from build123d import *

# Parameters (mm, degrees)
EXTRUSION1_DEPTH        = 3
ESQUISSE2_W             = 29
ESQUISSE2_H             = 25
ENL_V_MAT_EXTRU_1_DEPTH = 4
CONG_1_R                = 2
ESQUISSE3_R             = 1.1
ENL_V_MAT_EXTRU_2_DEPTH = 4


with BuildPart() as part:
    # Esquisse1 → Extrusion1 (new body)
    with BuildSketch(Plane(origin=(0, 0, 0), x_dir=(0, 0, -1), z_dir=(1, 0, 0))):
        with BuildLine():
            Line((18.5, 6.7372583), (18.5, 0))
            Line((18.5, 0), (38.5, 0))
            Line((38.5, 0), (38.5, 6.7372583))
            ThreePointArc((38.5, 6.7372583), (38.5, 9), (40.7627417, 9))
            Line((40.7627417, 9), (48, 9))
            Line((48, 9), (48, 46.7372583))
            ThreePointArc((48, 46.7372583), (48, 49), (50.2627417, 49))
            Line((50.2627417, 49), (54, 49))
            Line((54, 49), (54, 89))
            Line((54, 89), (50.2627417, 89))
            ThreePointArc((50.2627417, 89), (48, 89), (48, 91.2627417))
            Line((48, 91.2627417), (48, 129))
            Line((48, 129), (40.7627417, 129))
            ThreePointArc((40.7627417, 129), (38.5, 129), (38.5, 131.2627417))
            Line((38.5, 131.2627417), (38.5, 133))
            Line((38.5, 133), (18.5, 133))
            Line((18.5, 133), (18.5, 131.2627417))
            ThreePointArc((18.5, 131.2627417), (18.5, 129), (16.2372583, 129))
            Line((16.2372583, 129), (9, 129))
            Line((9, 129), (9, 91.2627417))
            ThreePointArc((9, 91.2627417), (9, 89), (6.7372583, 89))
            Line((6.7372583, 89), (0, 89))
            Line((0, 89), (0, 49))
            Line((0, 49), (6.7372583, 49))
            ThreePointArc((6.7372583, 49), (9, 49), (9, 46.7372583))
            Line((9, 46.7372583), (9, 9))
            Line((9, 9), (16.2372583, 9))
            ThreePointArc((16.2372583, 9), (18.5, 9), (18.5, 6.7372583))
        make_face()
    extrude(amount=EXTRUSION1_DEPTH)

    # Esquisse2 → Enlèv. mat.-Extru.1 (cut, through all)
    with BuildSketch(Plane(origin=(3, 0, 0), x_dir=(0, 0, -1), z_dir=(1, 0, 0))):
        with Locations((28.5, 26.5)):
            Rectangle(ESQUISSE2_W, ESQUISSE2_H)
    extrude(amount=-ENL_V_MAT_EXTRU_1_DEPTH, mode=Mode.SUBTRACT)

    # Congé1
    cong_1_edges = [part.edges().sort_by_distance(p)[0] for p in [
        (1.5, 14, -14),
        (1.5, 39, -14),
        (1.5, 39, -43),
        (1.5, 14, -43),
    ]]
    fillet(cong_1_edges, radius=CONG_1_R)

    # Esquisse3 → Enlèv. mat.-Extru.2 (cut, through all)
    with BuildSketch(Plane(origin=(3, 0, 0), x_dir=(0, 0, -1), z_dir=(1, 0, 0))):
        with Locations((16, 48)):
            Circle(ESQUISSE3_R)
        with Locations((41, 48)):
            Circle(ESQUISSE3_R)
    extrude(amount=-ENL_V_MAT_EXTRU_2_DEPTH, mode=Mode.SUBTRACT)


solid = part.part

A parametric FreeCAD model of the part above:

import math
import FreeCAD as App
import Part
import Sketcher
from FreeCAD import Vector
Q = App.Units.Quantity


def edges_at(feature, points):
    """Names of the edges that pass closest to the given points."""
    edges = feature.Shape.Edges
    near = lambda p: min(range(len(edges)), key=lambda i: edges[i].distToShape(Part.Vertex(*p))[0])
    return sorted({f"Edge{near(p) + 1}" for p in points})

doc = App.newDocument("Part")
body = doc.addObject("PartDesign::Body", "Body")

# Sketch on YZ plane
sketch1 = body.newObject("Sketcher::SketchObject", "Sketch")
sketch1.AttachmentSupport = (doc.getObject("YZ_Plane"), [""])
sketch1.MapMode = "FlatFace"
sketch1.addGeometry(Part.LineSegment(Vector(6.7, -18.5, 0), Vector(0, -18.5, 0)), False)
sketch1.addGeometry(Part.LineSegment(Vector(0, -18.5, 0), Vector(0, -38.5, 0)), False)
sketch1.addGeometry(Part.LineSegment(Vector(0, -38.5, 0), Vector(6.7, -38.5, 0)), False)
sketch1.addGeometry(Part.ArcOfCircle(Part.Circle(Vector(7.9, -39.6, 0), Vector(0, 0, 1), 1.6), math.radians(-45), math.radians(135)), False)
sketch1.addGeometry(Part.LineSegment(Vector(9, -40.8, 0), Vector(9, -48, 0)), False)
sketch1.addGeometry(Part.LineSegment(Vector(9, -48, 0), Vector(46.7, -48, 0)), False)
sketch1.addGeometry(Part.ArcOfCircle(Part.Circle(Vector(47.9, -49.1, 0), Vector(0, 0, 1), 1.6), math.radians(-45), math.radians(135)), False)
sketch1.addGeometry(Part.LineSegment(Vector(49, -50.3, 0), Vector(49, -54, 0)), False)
sketch1.addGeometry(Part.LineSegment(Vector(49, -54, 0), Vector(89, -54, 0)), False)
sketch1.addGeometry(Part.LineSegment(Vector(89, -54, 0), Vector(89, -50.3, 0)), False)
sketch1.addGeometry(Part.ArcOfCircle(Part.Circle(Vector(90.1, -49.1, 0), Vector(0, 0, 1), 1.6), math.radians(45), math.radians(225)), False)
sketch1.addGeometry(Part.LineSegment(Vector(91.3, -48, 0), Vector(129, -48, 0)), False)
sketch1.addGeometry(Part.LineSegment(Vector(129, -48, 0), Vector(129, -40.8, 0)), False)
sketch1.addGeometry(Part.ArcOfCircle(Part.Circle(Vector(130.1, -39.6, 0), Vector(0, 0, 1), 1.6), math.radians(45), math.radians(225)), False)
sketch1.addGeometry(Part.LineSegment(Vector(131.3, -38.5, 0), Vector(133, -38.5, 0)), False)
sketch1.addGeometry(Part.LineSegment(Vector(133, -38.5, 0), Vector(133, -18.5, 0)), False)
sketch1.addGeometry(Part.LineSegment(Vector(133, -18.5, 0), Vector(131.3, -18.5, 0)), False)
sketch1.addGeometry(Part.ArcOfCircle(Part.Circle(Vector(130.1, -17.4, 0), Vector(0, 0, 1), 1.6), math.radians(135), math.radians(315)), False)
sketch1.addGeometry(Part.LineSegment(Vector(129, -16.2, 0), Vector(129, -9, 0)), False)
sketch1.addGeometry(Part.LineSegment(Vector(129, -9, 0), Vector(91.3, -9, 0)), False)
sketch1.addGeometry(Part.ArcOfCircle(Part.Circle(Vector(90.1, -7.9, 0), Vector(0, 0, 1), 1.6), math.radians(135), math.radians(315)), False)
sketch1.addGeometry(Part.LineSegment(Vector(89, -6.7, 0), Vector(89, 0, 0)), False)
sketch1.addGeometry(Part.LineSegment(Vector(89, 0, 0), Vector(49, 0, 0)), False)
sketch1.addGeometry(Part.LineSegment(Vector(49, 0, 0), Vector(49, -6.7, 0)), False)
sketch1.addGeometry(Part.ArcOfCircle(Part.Circle(Vector(47.9, -7.9, 0), Vector(0, 0, 1), 1.6), math.radians(-135), math.radians(45)), False)
sketch1.addGeometry(Part.LineSegment(Vector(46.7, -9, 0), Vector(9, -9, 0)), False)
sketch1.addGeometry(Part.LineSegment(Vector(9, -9, 0), Vector(9, -16.2, 0)), False)
sketch1.addGeometry(Part.ArcOfCircle(Part.Circle(Vector(7.9, -17.4, 0), Vector(0, 0, 1), 1.6), math.radians(-135), math.radians(45)), False)
sketch1.addConstraint(Sketcher.Constraint("Coincident", 0, 2, 1, 1))
sketch1.addConstraint(Sketcher.Constraint("Coincident", 1, 2, 2, 1))
sketch1.addConstraint(Sketcher.Constraint("Coincident", 2, 2, 3, 2))
sketch1.addConstraint(Sketcher.Constraint("Coincident", 3, 1, 4, 1))
sketch1.addConstraint(Sketcher.Constraint("Coincident", 4, 2, 5, 1))
sketch1.addConstraint(Sketcher.Constraint("Coincident", 5, 2, 6, 2))
sketch1.addConstraint(Sketcher.Constraint("Coincident", 6, 1, 7, 1))
sketch1.addConstraint(Sketcher.Constraint("Coincident", 7, 2, 8, 1))
sketch1.addConstraint(Sketcher.Constraint("Coincident", 8, 2, 9, 1))
sketch1.addConstraint(Sketcher.Constraint("Coincident", 9, 2, 10, 2))
sketch1.addConstraint(Sketcher.Constraint("Coincident", 10, 1, 11, 1))
sketch1.addConstraint(Sketcher.Constraint("Coincident", 11, 2, 12, 1))
sketch1.addConstraint(Sketcher.Constraint("Coincident", 12, 2, 13, 2))
sketch1.addConstraint(Sketcher.Constraint("Coincident", 13, 1, 14, 1))
sketch1.addConstraint(Sketcher.Constraint("Coincident", 14, 2, 15, 1))
sketch1.addConstraint(Sketcher.Constraint("Coincident", 15, 2, 16, 1))
sketch1.addConstraint(Sketcher.Constraint("Coincident", 16, 2, 17, 2))
sketch1.addConstraint(Sketcher.Constraint("Coincident", 17, 1, 18, 1))
sketch1.addConstraint(Sketcher.Constraint("Coincident", 18, 2, 19, 1))
sketch1.addConstraint(Sketcher.Constraint("Coincident", 19, 2, 20, 2))
sketch1.addConstraint(Sketcher.Constraint("Coincident", 20, 1, 21, 1))
sketch1.addConstraint(Sketcher.Constraint("Coincident", 21, 2, 22, 1))
sketch1.addConstraint(Sketcher.Constraint("Coincident", 22, 2, 23, 1))
sketch1.addConstraint(Sketcher.Constraint("Coincident", 23, 2, 24, 2))
sketch1.addConstraint(Sketcher.Constraint("Coincident", 24, 1, 25, 1))
sketch1.addConstraint(Sketcher.Constraint("Coincident", 25, 2, 26, 1))
sketch1.addConstraint(Sketcher.Constraint("Coincident", 26, 2, 27, 2))
sketch1.addConstraint(Sketcher.Constraint("Coincident", 27, 1, 0, 1))
sketch1.addConstraint(Sketcher.Constraint("Horizontal", 0))
sketch1.addConstraint(Sketcher.Constraint("Vertical", 1))
sketch1.addConstraint(Sketcher.Constraint("Horizontal", 2))
sketch1.addConstraint(Sketcher.Constraint("Vertical", 4))
sketch1.addConstraint(Sketcher.Constraint("Horizontal", 5))
sketch1.addConstraint(Sketcher.Constraint("Vertical", 7))
sketch1.addConstraint(Sketcher.Constraint("Horizontal", 8))
sketch1.addConstraint(Sketcher.Constraint("Vertical", 9))
sketch1.addConstraint(Sketcher.Constraint("Horizontal", 11))
sketch1.addConstraint(Sketcher.Constraint("Vertical", 12))
sketch1.addConstraint(Sketcher.Constraint("Horizontal", 14))
sketch1.addConstraint(Sketcher.Constraint("Vertical", 15))
sketch1.addConstraint(Sketcher.Constraint("Horizontal", 16))
sketch1.addConstraint(Sketcher.Constraint("Vertical", 18))
sketch1.addConstraint(Sketcher.Constraint("Horizontal", 19))
sketch1.addConstraint(Sketcher.Constraint("Vertical", 21))
sketch1.addConstraint(Sketcher.Constraint("Horizontal", 22))
sketch1.addConstraint(Sketcher.Constraint("Vertical", 23))
sketch1.addConstraint(Sketcher.Constraint("Horizontal", 25))
sketch1.addConstraint(Sketcher.Constraint("Vertical", 26))
sketch1.addConstraint(Sketcher.Constraint("Equal", 3, 6))
sketch1.addConstraint(Sketcher.Constraint("Equal", 6, 10))
sketch1.addConstraint(Sketcher.Constraint("Equal", 10, 13))
sketch1.addConstraint(Sketcher.Constraint("Equal", 13, 17))
sketch1.addConstraint(Sketcher.Constraint("Equal", 17, 20))
sketch1.addConstraint(Sketcher.Constraint("Equal", 20, 24))
sketch1.addConstraint(Sketcher.Constraint("Equal", 24, 27))
sketch1.addConstraint(Sketcher.Constraint("PointOnObject", 0, 2, -2))
sketch1.addConstraint(Sketcher.Constraint("PointOnObject", 21, 2, -1))
sketch1.addConstraint(Sketcher.Constraint("Horizontal", 6, 3, 10, 3))
sketch1.addConstraint(Sketcher.Constraint("Horizontal", 3, 3, 13, 3))
sketch1.addConstraint(Sketcher.Constraint("Horizontal", 20, 3, 24, 3))
sketch1.addConstraint(Sketcher.Constraint("Horizontal", 17, 3, 27, 3))
sketch1.addConstraint(Sketcher.Constraint("Horizontal", 6, 1, 9, 2))
sketch1.addConstraint(Sketcher.Constraint("Horizontal", 5, 2, 10, 1))
sketch1.addConstraint(Sketcher.Constraint("Horizontal", 3, 1, 12, 2))
sketch1.addConstraint(Sketcher.Constraint("Horizontal", 2, 2, 13, 1))
sketch1.addConstraint(Sketcher.Constraint("Horizontal", 0, 2, 15, 2))
sketch1.addConstraint(Sketcher.Constraint("Horizontal", 20, 1, 23, 2))
sketch1.addConstraint(Sketcher.Constraint("Horizontal", 19, 2, 24, 1))
sketch1.addConstraint(Sketcher.Constraint("Horizontal", 17, 1, 26, 2))
sketch1.addConstraint(Sketcher.Constraint("Vertical", 13, 3, 17, 3))
sketch1.addConstraint(Sketcher.Constraint("Vertical", 10, 3, 20, 3))
sketch1.addConstraint(Sketcher.Constraint("Vertical", 6, 3, 24, 3))
sketch1.addConstraint(Sketcher.Constraint("Vertical", 3, 3, 27, 3))
sketch1.addConstraint(Sketcher.Constraint("Vertical", 13, 1, 16, 2))
sketch1.addConstraint(Sketcher.Constraint("Vertical", 12, 2, 17, 1))
sketch1.addConstraint(Sketcher.Constraint("Vertical", 10, 1, 19, 2))
sketch1.addConstraint(Sketcher.Constraint("Vertical", 9, 2, 20, 1))
sketch1.addConstraint(Sketcher.Constraint("Equal", 5, 11))
sketch1.addConstraint(Sketcher.Constraint("Equal", 12, 18))
sketch1.addConstraint(Sketcher.Constraint("Equal", 2, 21))
sketch1.addConstraint(Sketcher.Constraint("Radius", 3, Q("1.6 mm")))
sketch1.addConstraint(Sketcher.Constraint("DistanceX", 8, 1, 8, 2, Q("40 mm")))
sketch1.addConstraint(Sketcher.Constraint("DistanceY", 1, 2, 1, 1, Q("20 mm")))
sketch1.addConstraint(Sketcher.Constraint("DistanceX", -1, 1, 3, 1, Q("9 mm")))
sketch1.addConstraint(Sketcher.Constraint("DistanceY", 4, 2, -1, 1, Q("48 mm")))
sketch1.addConstraint(Sketcher.Constraint("DistanceX", -1, 1, 6, 1, Q("49 mm")))
sketch1.addConstraint(Sketcher.Constraint("DistanceY", 7, 2, -1, 1, Q("54 mm")))
sketch1.addConstraint(Sketcher.Constraint("DistanceX", -1, 1, 14, 2, Q("133 mm")))
sketch1.addConstraint(Sketcher.Constraint("DistanceY", 18, 2, -1, 1, Q("9 mm")))
sketch1.addConstraint(Sketcher.Constraint("DistanceX", 3, 3, 6, 3, Q("40 mm")))
sketch1.addConstraint(Sketcher.Constraint("DistanceX", 10, 1, 13, 1, Q("40 mm")))
sketch1.addConstraint(Sketcher.Constraint("DistanceX", -1, 1, 3, 3, Q("7.868629 mm")))
pad1 = body.newObject("PartDesign::Pad", "Pad")
pad1.Profile = sketch1
pad1.Length = 3

# Sketch on YZ plane
sketch2 = body.newObject("Sketcher::SketchObject", "Sketch001")
sketch2.AttachmentSupport = (doc.getObject("YZ_Plane"), [""])
sketch2.MapMode = "FlatFace"
sketch2.AttachmentOffset = App.Placement(Vector(0, 0, 3), App.Rotation())
sketch2.addGeometry(Part.LineSegment(Vector(39, -14, 0), Vector(14, -14, 0)), False)
sketch2.addGeometry(Part.LineSegment(Vector(14, -14, 0), Vector(14, -43, 0)), False)
sketch2.addGeometry(Part.LineSegment(Vector(14, -43, 0), Vector(39, -43, 0)), False)
sketch2.addGeometry(Part.LineSegment(Vector(39, -43, 0), Vector(39, -14, 0)), False)
sketch2.addConstraint(Sketcher.Constraint("Coincident", 0, 2, 1, 1))
sketch2.addConstraint(Sketcher.Constraint("Coincident", 1, 2, 2, 1))
sketch2.addConstraint(Sketcher.Constraint("Coincident", 2, 2, 3, 1))
sketch2.addConstraint(Sketcher.Constraint("Coincident", 3, 2, 0, 1))
sketch2.addConstraint(Sketcher.Constraint("Horizontal", 0))
sketch2.addConstraint(Sketcher.Constraint("Vertical", 1))
sketch2.addConstraint(Sketcher.Constraint("Horizontal", 2))
sketch2.addConstraint(Sketcher.Constraint("Vertical", 3))
sketch2.addConstraint(Sketcher.Constraint("DistanceX", 0, 2, 0, 1, Q("25 mm")))
sketch2.addConstraint(Sketcher.Constraint("DistanceY", 1, 2, 1, 1, Q("29 mm")))
sketch2.addConstraint(Sketcher.Constraint("DistanceX", -1, 1, 0, 2, Q("14 mm")))
sketch2.addConstraint(Sketcher.Constraint("DistanceY", 0, 2, -1, 1, Q("14 mm")))
pocket1 = body.newObject("PartDesign::Pocket", "Pocket")
pocket1.Profile = sketch2
pocket1.Type = "ThroughAll"
doc.recompute()

fillet = body.newObject("PartDesign::Fillet", "Fillet")
fillet.Base = (pocket1, edges_at(pocket1, [
    (1.5, 14, -14),
    (1.5, 39, -14),
    (1.5, 39, -43),
    (1.5, 14, -43),
]))
fillet.Radius = 2

# Sketch on YZ plane
sketch3 = body.newObject("Sketcher::SketchObject", "Sketch002")
sketch3.AttachmentSupport = (doc.getObject("YZ_Plane"), [""])
sketch3.MapMode = "FlatFace"
sketch3.AttachmentOffset = App.Placement(Vector(0, 0, 3), App.Rotation())
sketch3.addGeometry(Part.Circle(Vector(48, -16, 0), Vector(0, 0, 1), 1.1), False)
sketch3.addGeometry(Part.Circle(Vector(48, -41, 0), Vector(0, 0, 1), 1.1), False)
sketch3.addConstraint(Sketcher.Constraint("Equal", 0, 1))
sketch3.addConstraint(Sketcher.Constraint("Vertical", 0, 3, 1, 3))
sketch3.addConstraint(Sketcher.Constraint("Diameter", 0, Q("2.2 mm")))
sketch3.addConstraint(Sketcher.Constraint("DistanceX", -1, 1, 0, 3, Q("48 mm")))
sketch3.addConstraint(Sketcher.Constraint("DistanceY", 0, 3, -1, 1, Q("16 mm")))
sketch3.addConstraint(Sketcher.Constraint("DistanceY", 1, 3, -1, 1, Q("41 mm")))
pocket2 = body.newObject("PartDesign::Pocket", "Pocket001")
pocket2.Profile = sketch3
pocket2.Type = "ThroughAll"

doc.recompute()
